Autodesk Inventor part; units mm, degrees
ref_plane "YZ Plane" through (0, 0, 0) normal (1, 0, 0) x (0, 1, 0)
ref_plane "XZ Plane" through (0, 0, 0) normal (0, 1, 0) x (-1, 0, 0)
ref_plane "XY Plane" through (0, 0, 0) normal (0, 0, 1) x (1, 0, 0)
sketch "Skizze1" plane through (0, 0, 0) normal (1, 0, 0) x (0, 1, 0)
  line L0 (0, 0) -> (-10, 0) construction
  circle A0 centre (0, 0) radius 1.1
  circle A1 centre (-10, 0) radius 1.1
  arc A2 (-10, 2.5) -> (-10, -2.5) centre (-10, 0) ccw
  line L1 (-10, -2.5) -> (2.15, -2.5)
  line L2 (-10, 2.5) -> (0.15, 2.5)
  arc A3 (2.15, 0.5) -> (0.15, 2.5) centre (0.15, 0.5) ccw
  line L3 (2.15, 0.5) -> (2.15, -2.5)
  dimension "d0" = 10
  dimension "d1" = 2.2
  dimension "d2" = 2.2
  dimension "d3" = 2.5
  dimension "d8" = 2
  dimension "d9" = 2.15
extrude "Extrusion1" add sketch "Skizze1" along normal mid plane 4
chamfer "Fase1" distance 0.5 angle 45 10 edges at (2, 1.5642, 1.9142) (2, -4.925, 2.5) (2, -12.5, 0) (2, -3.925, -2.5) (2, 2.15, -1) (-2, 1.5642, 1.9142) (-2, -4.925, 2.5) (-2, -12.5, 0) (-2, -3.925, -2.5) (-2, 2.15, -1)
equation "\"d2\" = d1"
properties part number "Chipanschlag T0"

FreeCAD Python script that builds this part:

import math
import FreeCAD as App
import Part
import Sketcher

V = App.Vector


def edges_at(feature, points):
    """Names of the edges that pass closest to the given points."""
    edges = feature.Shape.Edges
    near = lambda p: min(range(len(edges)), key=lambda i: edges[i].distToShape(Part.Vertex(*p))[0])
    return sorted({f"Edge{near(p) + 1}" for p in points})

doc = App.newDocument("Part")
body = doc.addObject("PartDesign::Body", "Body")

# Sketch on YZ plane
sketch1 = body.newObject("Sketcher::SketchObject", "Sketch")
sketch1.AttachmentSupport = (doc.getObject("YZ_Plane"), [""])
sketch1.MapMode = "FlatFace"
sketch1.addGeometry([
    Part.LineSegment(V(0.1, 2.5, 0), V(-10, 2.5, 0)),  # 0
    Part.ArcOfCircle(Part.Circle(V(-10, 0, 0), V(0, 0, 1), 2.5), math.radians(90), math.radians(270)),  # 1
    Part.LineSegment(V(-10, -2.5, 0), V(2.1, -2.5, 0)),  # 2
    Part.LineSegment(V(2.1, -2.5, 0), V(2.1, 0.5, 0)),  # 3
    Part.ArcOfCircle(Part.Circle(V(0.1, 0.5, 0), V(0, 0, 1), 2), math.radians(0), math.radians(90)),  # 4
    Part.Circle(V(-10, 0, 0), V(0, 0, 1), 1.1),  # 5
    Part.Circle(V(0, 0, 0), V(0, 0, 1), 1.1),  # 6
], False)
sketch1.addConstraint([
    Sketcher.Constraint("Tangent", 0, 2, 1, 1),
    Sketcher.Constraint("Tangent", 1, 2, 2, 1),
    Sketcher.Constraint("Coincident", 2, 2, 3, 1),
    Sketcher.Constraint("Tangent", 3, 2, 4, 1),
    Sketcher.Constraint("Tangent", 4, 2, 0, 1),
    Sketcher.Constraint("Horizontal", 0),
    Sketcher.Constraint("Horizontal", 2),
    Sketcher.Constraint("Vertical", 3),
    Sketcher.Constraint("Coincident", 6, 3, -1, 1),
    Sketcher.Constraint("Coincident", 5, 3, 1, 3),
    Sketcher.Constraint("Equal", 5, 6),
    Sketcher.Constraint("PointOnObject", 1, 3, -1),
    Sketcher.Constraint("Radius", 4, 2.0),
    Sketcher.Constraint("Diameter", 5, 2.2),
    Sketcher.Constraint("Radius", 1, 2.5),
    Sketcher.Constraint("DistanceX", 1, 3, -1, 1, 10.0),
    Sketcher.Constraint("DistanceX", -1, 1, 2, 2, 2.15),
])
pad1 = body.newObject("PartDesign::Pad", "Pad")
pad1.Profile = sketch1
pad1.Length = 4
pad1.Midplane = True
doc.recompute()

chamfer = body.newObject("PartDesign::Chamfer", "Chamfer")
chamfer.Base = (pad1, edges_at(pad1, [
    (2, 1.564, 1.914),
    (2, -4.925, 2.5),
    (2, -12.5, 0),
    (2, -3.925, -2.5),
    (2, 2.15, -1),
    (-2, 1.564, 1.914),
    (-2, -4.925, 2.5),
    (-2, -12.5, 0),
    (-2, -3.925, -2.5),
    (-2, 2.15, -1),
]))
chamfer.Size = 0.5

doc.recompute()
